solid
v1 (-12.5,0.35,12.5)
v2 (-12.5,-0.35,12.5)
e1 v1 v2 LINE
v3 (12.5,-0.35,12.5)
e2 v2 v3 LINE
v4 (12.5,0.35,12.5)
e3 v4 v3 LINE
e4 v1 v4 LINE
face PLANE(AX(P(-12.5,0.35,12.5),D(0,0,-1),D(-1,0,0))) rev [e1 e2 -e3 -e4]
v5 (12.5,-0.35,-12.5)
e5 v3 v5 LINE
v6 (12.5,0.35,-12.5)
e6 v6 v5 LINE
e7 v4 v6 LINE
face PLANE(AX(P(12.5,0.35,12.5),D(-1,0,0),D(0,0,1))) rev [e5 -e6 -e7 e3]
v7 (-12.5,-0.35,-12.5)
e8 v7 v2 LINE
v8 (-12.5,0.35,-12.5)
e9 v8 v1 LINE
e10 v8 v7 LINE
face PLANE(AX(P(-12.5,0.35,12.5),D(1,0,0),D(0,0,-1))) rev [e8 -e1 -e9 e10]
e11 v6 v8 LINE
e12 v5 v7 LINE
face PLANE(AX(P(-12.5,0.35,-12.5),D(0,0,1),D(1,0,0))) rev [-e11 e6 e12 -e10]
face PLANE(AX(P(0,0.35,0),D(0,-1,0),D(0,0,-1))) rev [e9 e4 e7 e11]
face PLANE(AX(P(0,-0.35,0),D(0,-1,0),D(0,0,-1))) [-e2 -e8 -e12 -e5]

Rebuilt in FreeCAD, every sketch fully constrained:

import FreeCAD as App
import Part
import Sketcher
from FreeCAD import Vector


def add_polygon(sketch, points):
    """Adds a closed chain of lines whose ends are joined by coincident constraints."""
    first, n = sketch.GeometryCount, len(points)
    for a, b in zip(points, points[1:] + points[:1]):
        sketch.addGeometry(Part.LineSegment(App.Vector(*a, 0), App.Vector(*b, 0)), False)
    for i in range(n):
        sketch.addConstraint(Sketcher.Constraint("Coincident", first + i, 2, first + (i + 1) % n, 1))

doc = App.newDocument("Part")
body = doc.addObject("PartDesign::Body", "Body")

sketch1 = doc.addObject("Sketcher::SketchObject", "Sketch")
body.addObject(sketch1)
sketch1.AttachmentSupport = (doc.XZ_Plane, [""])
sketch1.MapMode = "FlatFace"
add_polygon(sketch1, [(-12, -12), (-12, 12), (12, 12), (12, -12)])
sketch1.addConstraint([
    Sketcher.Constraint("Vertical", 0),
    Sketcher.Constraint("Horizontal", 1),
    Sketcher.Constraint("Vertical", 2),
    Sketcher.Constraint("Horizontal", 3),
    Sketcher.Constraint("Symmetric", 0, 2, 2, 2, -1, 1),
    Sketcher.Constraint("Equal", 3, 0),
    Sketcher.Constraint("DistanceX", 1, 1, 1, 2, 25.0),
])
pad1 = doc.addObject("PartDesign::Pad", "Pad")
body.addObject(pad1)
pad1.Profile = sketch1
pad1.Length = 0.7
pad1.Midplane = True

doc.recompute()
